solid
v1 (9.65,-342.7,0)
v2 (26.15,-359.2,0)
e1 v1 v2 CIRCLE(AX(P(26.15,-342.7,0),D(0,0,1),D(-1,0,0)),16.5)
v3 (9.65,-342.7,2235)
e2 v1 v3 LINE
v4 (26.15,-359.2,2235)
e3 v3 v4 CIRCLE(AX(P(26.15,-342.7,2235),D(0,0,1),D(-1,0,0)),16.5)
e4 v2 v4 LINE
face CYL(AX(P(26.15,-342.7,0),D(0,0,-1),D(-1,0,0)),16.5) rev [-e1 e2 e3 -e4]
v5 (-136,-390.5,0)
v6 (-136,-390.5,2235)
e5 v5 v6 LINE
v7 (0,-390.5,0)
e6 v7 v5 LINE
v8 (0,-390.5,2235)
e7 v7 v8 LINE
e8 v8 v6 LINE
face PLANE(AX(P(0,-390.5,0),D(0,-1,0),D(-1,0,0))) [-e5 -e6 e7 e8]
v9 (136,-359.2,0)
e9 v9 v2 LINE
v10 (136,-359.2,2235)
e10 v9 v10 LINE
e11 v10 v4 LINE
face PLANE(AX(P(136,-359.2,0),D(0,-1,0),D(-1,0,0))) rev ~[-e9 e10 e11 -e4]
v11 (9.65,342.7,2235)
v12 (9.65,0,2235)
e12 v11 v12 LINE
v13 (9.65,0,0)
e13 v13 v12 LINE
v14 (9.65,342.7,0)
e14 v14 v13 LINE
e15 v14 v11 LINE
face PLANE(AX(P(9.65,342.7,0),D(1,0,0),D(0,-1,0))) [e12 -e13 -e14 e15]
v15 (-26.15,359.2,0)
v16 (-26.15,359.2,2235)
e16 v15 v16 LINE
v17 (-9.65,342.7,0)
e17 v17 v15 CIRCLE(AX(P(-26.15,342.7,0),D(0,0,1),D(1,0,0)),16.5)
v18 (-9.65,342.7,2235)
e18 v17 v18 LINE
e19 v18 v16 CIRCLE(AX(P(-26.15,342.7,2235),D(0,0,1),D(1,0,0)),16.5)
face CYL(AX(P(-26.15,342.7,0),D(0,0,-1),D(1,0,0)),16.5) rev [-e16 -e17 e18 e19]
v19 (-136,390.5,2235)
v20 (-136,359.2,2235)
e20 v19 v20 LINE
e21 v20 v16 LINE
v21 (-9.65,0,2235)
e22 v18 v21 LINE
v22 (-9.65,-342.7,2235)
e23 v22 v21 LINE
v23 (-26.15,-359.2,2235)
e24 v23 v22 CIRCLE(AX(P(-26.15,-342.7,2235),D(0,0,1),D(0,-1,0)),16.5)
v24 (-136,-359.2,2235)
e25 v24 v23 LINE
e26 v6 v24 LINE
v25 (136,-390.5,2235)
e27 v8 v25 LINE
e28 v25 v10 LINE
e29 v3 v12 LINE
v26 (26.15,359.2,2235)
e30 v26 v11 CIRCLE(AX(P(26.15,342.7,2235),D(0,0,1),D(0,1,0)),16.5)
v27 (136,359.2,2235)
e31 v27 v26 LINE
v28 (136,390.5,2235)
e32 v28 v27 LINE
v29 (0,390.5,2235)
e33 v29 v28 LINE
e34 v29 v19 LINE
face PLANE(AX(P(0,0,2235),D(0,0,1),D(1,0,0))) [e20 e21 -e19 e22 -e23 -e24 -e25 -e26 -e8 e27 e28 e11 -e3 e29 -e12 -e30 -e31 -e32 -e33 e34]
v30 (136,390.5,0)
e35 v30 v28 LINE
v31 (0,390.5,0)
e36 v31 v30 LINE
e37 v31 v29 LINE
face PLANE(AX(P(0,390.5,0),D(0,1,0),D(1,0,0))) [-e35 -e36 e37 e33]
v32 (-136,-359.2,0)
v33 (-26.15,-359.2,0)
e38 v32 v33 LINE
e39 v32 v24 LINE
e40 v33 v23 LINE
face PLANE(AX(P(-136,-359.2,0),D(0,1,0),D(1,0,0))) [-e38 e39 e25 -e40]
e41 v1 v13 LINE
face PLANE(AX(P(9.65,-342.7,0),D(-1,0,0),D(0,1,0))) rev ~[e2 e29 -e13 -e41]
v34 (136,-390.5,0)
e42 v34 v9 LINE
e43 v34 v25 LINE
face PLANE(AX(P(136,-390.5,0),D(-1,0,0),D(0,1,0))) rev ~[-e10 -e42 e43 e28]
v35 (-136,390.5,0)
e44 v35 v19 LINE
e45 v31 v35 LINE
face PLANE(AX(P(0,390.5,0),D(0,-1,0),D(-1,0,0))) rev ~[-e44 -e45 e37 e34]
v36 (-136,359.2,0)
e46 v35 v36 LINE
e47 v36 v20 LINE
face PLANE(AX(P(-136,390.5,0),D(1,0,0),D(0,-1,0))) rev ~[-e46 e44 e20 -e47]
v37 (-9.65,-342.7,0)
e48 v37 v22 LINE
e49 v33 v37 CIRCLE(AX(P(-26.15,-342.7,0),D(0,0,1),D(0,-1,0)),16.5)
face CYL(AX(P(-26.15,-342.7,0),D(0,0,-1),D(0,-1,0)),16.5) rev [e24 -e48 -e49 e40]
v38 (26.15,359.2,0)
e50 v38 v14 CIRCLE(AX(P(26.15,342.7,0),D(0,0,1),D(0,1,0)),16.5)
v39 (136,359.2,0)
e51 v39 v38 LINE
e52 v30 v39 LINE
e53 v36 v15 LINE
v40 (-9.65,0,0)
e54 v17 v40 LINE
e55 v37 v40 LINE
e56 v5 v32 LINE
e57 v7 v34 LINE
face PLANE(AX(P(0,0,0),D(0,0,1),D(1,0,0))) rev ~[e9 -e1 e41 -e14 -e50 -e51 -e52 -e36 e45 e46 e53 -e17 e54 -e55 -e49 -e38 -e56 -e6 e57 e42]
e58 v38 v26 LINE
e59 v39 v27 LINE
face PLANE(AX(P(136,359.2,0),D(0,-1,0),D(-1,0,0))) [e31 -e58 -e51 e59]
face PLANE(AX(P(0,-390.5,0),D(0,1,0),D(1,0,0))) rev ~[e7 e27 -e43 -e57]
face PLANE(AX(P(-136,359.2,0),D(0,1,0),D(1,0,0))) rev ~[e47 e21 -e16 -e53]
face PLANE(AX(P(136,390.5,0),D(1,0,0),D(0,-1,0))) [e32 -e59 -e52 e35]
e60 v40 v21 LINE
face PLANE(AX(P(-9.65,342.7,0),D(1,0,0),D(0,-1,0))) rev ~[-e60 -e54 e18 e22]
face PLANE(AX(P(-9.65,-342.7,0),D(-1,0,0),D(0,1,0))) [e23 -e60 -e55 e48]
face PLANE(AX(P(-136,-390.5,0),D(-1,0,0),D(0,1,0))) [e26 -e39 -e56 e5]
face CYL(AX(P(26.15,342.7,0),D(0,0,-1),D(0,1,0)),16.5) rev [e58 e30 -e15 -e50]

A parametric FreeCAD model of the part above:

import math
import FreeCAD as App
import Part
import Sketcher

doc = App.newDocument("Part")
params = doc.addObject("Spreadsheet::Sheet", "Params")
for row, (alias, value) in enumerate([
    ("sketch1_radius", "16.5 mm"),
    ("sketch1_height", "31.3 mm"),
    ("pad1_length", "2235 mm"),
], start=1):
    params.set(f"A{row}", alias)
    params.set(f"B{row}", "=" + value)
    params.setAlias(f"B{row}", alias)

body = doc.addObject("PartDesign::Body", "Body")

# Sketch on XY plane
sketch1 = body.newObject("Sketcher::SketchObject", "Sketch")
sketch1.AttachmentSupport = (doc.getObject("XY_Plane"), [""])
sketch1.MapMode = "FlatFace"
sketch1.addGeometry(Part.LineSegment(App.Vector(-136, -359.2, 0), App.Vector(-136, -390.5, 0)), False)
sketch1.addGeometry(Part.LineSegment(App.Vector(-136, -390.5, 0), App.Vector(136, -390.5, 0)), False)
sketch1.addGeometry(Part.LineSegment(App.Vector(136, -390.5, 0), App.Vector(136, -359.2, 0)), False)
sketch1.addGeometry(Part.LineSegment(App.Vector(136, -359.2, 0), App.Vector(26.15, -359.2, 0)), False)
sketch1.addGeometry(Part.ArcOfCircle(Part.Circle(App.Vector(26.15, -342.7, 0), App.Vector(0, 0, 1), 16.5), math.radians(180), math.radians(270)), False)
sketch1.addGeometry(Part.LineSegment(App.Vector(9.65, -342.7, 0), App.Vector(9.65, 342.7, 0)), False)
sketch1.addGeometry(Part.ArcOfCircle(Part.Circle(App.Vector(26.15, 342.7, 0), App.Vector(0, 0, 1), 16.5), math.radians(90), math.radians(180)), False)
sketch1.addGeometry(Part.LineSegment(App.Vector(26.15, 359.2, 0), App.Vector(136, 359.2, 0)), False)
sketch1.addGeometry(Part.LineSegment(App.Vector(136, 359.2, 0), App.Vector(136, 390.5, 0)), False)
sketch1.addGeometry(Part.LineSegment(App.Vector(136, 390.5, 0), App.Vector(-136, 390.5, 0)), False)
sketch1.addGeometry(Part.LineSegment(App.Vector(-136, 390.5, 0), App.Vector(-136, 359.2, 0)), False)
sketch1.addGeometry(Part.LineSegment(App.Vector(-136, 359.2, 0), App.Vector(-26.15, 359.2, 0)), False)
sketch1.addGeometry(Part.ArcOfCircle(Part.Circle(App.Vector(-26.15, 342.7, 0), App.Vector(0, 0, 1), 16.5), math.radians(0), math.radians(90)), False)
sketch1.addGeometry(Part.LineSegment(App.Vector(-9.65, 342.7, 0), App.Vector(-9.65, -342.7, 0)), False)
sketch1.addGeometry(Part.ArcOfCircle(Part.Circle(App.Vector(-26.15, -342.7, 0), App.Vector(0, 0, 1), 16.5), math.radians(-90), math.radians(0)), False)
sketch1.addGeometry(Part.LineSegment(App.Vector(-26.15, -359.2, 0), App.Vector(-136, -359.2, 0)), False)
sketch1.addConstraint(Sketcher.Constraint("Coincident", 0, 2, 1, 1))
sketch1.addConstraint(Sketcher.Constraint("Coincident", 1, 2, 2, 1))
sketch1.addConstraint(Sketcher.Constraint("Coincident", 2, 2, 3, 1))
sketch1.addConstraint(Sketcher.Constraint("Tangent", 3, 2, 4, 2))
sketch1.addConstraint(Sketcher.Constraint("Tangent", 4, 1, 5, 1))
sketch1.addConstraint(Sketcher.Constraint("Tangent", 5, 2, 6, 2))
sketch1.addConstraint(Sketcher.Constraint("Tangent", 6, 1, 7, 1))
sketch1.addConstraint(Sketcher.Constraint("Coincident", 7, 2, 8, 1))
sketch1.addConstraint(Sketcher.Constraint("Coincident", 8, 2, 9, 1))
sketch1.addConstraint(Sketcher.Constraint("Coincident", 9, 2, 10, 1))
sketch1.addConstraint(Sketcher.Constraint("Coincident", 10, 2, 11, 1))
sketch1.addConstraint(Sketcher.Constraint("Tangent", 11, 2, 12, 2))
sketch1.addConstraint(Sketcher.Constraint("Tangent", 12, 1, 13, 1))
sketch1.addConstraint(Sketcher.Constraint("Tangent", 13, 2, 14, 2))
sketch1.addConstraint(Sketcher.Constraint("Tangent", 14, 1, 15, 1))
sketch1.addConstraint(Sketcher.Constraint("Coincident", 15, 2, 0, 1))
sketch1.addConstraint(Sketcher.Constraint("Vertical", 0))
sketch1.addConstraint(Sketcher.Constraint("Horizontal", 1))
sketch1.addConstraint(Sketcher.Constraint("Vertical", 2))
sketch1.addConstraint(Sketcher.Constraint("Horizontal", 3))
sketch1.addConstraint(Sketcher.Constraint("Vertical", 5))
sketch1.addConstraint(Sketcher.Constraint("Horizontal", 7))
sketch1.addConstraint(Sketcher.Constraint("Vertical", 8))
sketch1.addConstraint(Sketcher.Constraint("Horizontal", 9))
sketch1.addConstraint(Sketcher.Constraint("Vertical", 10))
sketch1.addConstraint(Sketcher.Constraint("Horizontal", 11))
sketch1.addConstraint(Sketcher.Constraint("Vertical", 13))
sketch1.addConstraint(Sketcher.Constraint("Horizontal", 15))
sketch1.addConstraint(Sketcher.Constraint("Equal", 4, 6))
sketch1.addConstraint(Sketcher.Constraint("Equal", 6, 12))
sketch1.addConstraint(Sketcher.Constraint("Equal", 12, 14))
sketch1.addConstraint(Sketcher.Constraint("Symmetric", 4, 3, 12, 3, -1, 1))
sketch1.addConstraint(Sketcher.Constraint("Symmetric", 0, 2, 8, 2, -1, 1))
sketch1.addConstraint(Sketcher.Constraint("Symmetric", 7, 2, 10, 2, -2))
sketch1.addConstraint(Sketcher.Constraint("Symmetric", 2, 2, 15, 2, -2))
sketch1.addConstraint(Sketcher.Constraint("Radius", 4, 16.5))
sketch1.addConstraint(Sketcher.Constraint("DistanceY", 0, 2, 0, 1, 31.3))
sketch1.addConstraint(Sketcher.Constraint("DistanceX", 0, 2, -1, 1, 136.0))
sketch1.addConstraint(Sketcher.Constraint("DistanceY", 0, 2, -1, 1, 390.5))
sketch1.addConstraint(Sketcher.Constraint("DistanceX", -1, 1, 4, 1, 9.65))
sketch1.setExpression("Constraints[35]", "Params.sketch1_radius")
sketch1.setExpression("Constraints[36]", "Params.sketch1_height")
pad1 = body.newObject("PartDesign::Pad", "Pad")
pad1.Profile = sketch1
pad1.setExpression("Length", "Params.pad1_length")

doc.recompute()
